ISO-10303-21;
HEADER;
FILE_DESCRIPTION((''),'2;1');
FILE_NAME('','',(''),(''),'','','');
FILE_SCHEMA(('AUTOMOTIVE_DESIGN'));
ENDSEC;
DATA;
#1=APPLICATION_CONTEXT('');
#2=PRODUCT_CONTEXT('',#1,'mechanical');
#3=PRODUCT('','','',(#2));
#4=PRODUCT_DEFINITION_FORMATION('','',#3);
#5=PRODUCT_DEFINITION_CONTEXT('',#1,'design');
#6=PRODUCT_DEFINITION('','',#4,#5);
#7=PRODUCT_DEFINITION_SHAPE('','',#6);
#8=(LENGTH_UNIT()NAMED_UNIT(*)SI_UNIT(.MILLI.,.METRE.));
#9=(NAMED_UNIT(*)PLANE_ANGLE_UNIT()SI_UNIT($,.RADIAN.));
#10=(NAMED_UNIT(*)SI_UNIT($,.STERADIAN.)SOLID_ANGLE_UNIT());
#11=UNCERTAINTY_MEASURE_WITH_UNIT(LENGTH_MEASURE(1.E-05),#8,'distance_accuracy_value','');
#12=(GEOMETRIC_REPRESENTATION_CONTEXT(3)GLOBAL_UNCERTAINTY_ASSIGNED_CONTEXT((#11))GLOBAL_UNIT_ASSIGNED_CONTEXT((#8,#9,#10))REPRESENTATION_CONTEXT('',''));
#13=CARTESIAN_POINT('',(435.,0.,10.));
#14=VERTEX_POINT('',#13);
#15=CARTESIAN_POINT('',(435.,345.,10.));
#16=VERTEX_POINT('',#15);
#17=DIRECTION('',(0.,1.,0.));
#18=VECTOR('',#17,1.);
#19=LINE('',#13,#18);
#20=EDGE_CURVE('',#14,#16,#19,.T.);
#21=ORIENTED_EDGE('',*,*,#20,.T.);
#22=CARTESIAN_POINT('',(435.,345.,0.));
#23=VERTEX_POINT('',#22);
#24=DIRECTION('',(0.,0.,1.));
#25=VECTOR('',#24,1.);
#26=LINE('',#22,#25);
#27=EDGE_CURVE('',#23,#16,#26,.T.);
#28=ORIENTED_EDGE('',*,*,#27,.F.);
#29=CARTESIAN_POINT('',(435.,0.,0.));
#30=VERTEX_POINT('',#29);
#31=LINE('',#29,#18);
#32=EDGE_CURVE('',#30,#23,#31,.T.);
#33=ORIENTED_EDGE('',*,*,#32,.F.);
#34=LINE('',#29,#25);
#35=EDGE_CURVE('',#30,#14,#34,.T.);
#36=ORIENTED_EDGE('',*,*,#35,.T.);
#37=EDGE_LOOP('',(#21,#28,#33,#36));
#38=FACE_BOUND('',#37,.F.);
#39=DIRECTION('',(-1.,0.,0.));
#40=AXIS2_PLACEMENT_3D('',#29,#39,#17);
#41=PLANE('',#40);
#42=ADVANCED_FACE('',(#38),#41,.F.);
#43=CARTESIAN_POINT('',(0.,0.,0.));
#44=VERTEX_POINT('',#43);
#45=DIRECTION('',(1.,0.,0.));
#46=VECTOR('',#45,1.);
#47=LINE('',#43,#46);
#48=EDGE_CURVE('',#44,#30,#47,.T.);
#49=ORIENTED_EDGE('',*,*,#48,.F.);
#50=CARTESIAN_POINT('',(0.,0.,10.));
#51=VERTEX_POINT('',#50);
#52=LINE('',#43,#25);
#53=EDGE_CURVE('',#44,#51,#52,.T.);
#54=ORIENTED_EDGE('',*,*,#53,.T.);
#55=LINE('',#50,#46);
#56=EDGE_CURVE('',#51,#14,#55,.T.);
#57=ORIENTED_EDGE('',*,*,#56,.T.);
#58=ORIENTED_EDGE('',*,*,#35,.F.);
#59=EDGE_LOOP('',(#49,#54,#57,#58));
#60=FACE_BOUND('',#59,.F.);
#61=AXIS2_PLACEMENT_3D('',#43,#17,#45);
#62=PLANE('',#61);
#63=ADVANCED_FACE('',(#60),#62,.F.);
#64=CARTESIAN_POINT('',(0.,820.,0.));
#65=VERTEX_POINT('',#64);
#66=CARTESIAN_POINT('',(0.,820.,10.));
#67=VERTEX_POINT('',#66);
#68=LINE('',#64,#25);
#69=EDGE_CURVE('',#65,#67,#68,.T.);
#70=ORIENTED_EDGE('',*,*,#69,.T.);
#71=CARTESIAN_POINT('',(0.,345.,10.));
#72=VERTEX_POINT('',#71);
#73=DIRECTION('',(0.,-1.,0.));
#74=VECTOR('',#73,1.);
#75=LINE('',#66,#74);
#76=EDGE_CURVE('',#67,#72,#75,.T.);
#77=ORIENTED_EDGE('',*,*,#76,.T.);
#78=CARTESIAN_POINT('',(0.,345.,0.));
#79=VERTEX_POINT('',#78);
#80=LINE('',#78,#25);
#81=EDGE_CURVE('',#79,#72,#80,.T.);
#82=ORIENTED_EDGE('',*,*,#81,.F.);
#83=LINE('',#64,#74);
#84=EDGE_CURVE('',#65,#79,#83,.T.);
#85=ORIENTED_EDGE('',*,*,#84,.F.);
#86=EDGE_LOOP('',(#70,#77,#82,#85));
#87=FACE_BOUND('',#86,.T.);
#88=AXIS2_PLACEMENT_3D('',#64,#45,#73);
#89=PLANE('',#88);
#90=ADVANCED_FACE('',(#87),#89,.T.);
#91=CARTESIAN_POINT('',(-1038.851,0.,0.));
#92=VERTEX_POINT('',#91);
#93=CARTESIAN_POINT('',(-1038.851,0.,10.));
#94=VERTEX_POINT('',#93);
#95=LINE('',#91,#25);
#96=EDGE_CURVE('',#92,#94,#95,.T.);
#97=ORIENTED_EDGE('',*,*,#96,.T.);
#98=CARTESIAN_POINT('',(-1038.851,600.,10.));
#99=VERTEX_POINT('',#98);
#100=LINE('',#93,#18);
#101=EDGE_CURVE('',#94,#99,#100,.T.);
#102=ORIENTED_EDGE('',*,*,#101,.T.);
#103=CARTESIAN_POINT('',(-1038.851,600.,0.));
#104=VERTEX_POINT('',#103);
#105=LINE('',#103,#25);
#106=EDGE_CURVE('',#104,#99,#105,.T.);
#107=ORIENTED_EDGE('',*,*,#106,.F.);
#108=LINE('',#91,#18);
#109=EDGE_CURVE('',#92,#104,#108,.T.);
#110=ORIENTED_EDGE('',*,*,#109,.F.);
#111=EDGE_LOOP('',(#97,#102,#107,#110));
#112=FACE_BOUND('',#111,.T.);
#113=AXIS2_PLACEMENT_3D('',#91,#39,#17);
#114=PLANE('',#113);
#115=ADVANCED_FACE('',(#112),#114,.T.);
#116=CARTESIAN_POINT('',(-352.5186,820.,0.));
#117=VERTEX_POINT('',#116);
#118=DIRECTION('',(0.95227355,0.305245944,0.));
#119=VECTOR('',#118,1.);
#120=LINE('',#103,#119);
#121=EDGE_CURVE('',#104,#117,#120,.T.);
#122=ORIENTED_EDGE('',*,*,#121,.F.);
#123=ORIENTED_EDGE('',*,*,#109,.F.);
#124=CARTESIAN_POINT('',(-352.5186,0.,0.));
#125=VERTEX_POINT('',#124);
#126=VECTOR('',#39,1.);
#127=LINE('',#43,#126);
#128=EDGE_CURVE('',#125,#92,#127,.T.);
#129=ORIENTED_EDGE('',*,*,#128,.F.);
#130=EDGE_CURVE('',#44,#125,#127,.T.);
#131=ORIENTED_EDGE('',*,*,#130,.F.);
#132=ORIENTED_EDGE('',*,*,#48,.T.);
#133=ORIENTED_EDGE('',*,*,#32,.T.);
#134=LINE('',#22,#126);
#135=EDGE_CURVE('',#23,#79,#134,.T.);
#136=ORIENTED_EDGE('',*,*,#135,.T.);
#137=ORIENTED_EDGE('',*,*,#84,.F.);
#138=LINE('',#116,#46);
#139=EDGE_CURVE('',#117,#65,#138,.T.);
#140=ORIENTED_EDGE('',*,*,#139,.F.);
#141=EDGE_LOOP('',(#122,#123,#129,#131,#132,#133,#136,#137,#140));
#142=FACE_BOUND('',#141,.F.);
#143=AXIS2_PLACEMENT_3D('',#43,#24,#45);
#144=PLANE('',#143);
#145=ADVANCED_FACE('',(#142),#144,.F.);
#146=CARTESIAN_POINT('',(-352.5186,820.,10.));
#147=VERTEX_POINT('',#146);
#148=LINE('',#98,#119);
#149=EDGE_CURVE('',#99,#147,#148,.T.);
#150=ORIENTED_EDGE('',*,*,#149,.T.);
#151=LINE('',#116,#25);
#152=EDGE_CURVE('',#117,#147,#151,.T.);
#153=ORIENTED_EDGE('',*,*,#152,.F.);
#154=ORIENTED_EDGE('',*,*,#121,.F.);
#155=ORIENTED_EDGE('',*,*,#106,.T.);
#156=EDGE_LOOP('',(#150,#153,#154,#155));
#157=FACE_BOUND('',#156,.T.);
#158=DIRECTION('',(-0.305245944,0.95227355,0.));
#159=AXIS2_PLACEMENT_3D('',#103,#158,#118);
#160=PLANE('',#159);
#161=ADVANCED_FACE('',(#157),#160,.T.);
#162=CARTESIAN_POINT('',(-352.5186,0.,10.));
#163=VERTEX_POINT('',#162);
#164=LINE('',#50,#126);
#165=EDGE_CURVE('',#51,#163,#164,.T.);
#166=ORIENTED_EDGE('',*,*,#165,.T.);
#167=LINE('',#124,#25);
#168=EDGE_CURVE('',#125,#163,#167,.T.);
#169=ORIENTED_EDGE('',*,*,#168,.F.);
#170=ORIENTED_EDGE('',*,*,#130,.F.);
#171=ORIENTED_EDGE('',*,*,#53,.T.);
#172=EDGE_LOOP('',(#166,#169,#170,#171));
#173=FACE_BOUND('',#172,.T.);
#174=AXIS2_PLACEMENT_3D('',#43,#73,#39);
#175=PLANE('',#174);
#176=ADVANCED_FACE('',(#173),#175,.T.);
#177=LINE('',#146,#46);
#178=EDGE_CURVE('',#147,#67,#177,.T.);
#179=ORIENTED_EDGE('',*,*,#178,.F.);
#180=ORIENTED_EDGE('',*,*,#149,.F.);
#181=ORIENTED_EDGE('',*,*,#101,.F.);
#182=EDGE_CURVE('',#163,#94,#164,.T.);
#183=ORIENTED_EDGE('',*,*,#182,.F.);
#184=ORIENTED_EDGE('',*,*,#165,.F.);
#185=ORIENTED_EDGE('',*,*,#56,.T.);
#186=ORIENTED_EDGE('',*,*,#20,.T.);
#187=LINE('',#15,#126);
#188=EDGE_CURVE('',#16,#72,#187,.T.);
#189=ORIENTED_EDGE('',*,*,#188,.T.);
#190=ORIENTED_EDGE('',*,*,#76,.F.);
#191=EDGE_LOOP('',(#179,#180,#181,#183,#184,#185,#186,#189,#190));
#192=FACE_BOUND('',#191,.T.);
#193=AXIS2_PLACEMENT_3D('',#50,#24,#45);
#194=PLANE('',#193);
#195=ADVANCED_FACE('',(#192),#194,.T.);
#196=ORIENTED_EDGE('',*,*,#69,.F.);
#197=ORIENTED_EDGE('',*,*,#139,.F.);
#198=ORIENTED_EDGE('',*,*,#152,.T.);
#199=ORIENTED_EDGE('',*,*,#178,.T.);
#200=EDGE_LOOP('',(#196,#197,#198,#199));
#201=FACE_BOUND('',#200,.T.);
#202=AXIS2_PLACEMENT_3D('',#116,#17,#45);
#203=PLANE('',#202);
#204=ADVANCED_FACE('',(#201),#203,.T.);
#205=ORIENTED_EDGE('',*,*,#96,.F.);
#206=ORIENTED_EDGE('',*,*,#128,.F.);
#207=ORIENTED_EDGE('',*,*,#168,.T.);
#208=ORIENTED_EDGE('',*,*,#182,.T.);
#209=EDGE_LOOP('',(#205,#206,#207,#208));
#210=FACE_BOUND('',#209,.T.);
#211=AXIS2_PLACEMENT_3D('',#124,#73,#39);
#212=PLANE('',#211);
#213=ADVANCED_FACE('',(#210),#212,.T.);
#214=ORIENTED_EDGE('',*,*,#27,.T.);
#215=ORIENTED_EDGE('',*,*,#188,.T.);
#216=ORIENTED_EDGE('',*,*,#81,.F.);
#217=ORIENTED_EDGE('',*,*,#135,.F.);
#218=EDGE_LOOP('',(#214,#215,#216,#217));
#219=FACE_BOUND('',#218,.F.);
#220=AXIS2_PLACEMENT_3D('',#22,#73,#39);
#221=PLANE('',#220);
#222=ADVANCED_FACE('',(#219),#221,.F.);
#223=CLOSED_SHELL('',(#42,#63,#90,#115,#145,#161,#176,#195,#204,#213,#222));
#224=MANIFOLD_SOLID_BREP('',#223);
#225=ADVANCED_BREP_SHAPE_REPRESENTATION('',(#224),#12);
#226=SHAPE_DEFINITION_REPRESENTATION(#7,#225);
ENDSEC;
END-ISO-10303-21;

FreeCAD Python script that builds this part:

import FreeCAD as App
import Part
import Sketcher

V = App.Vector
Q = App.Units.Quantity

doc = App.newDocument("Part")
body = doc.addObject("PartDesign::Body", "Body")

sketch1 = doc.addObject("Sketcher::SketchObject", "Sketch")
body.addObject(sketch1)
sketch1.AttachmentSupport = (doc.XY_Plane, [""])
sketch1.MapMode = "FlatFace"
sketch1.addGeometry([
    Part.LineSegment(V(-1038.851, 0, 0), V(435, 0, 0)),
    Part.LineSegment(V(435, 0, 0), V(435, 345, 0)),
    Part.LineSegment(V(435, 345, 0), V(0, 345, 0)),
    Part.LineSegment(V(0, 345, 0), V(0, 820, 0)),
    Part.LineSegment(V(0, 820, 0), V(-352.5186, 820, 0)),
    Part.LineSegment(V(-352.5186, 820, 0), V(-1038.851, 600, 0)),
    Part.LineSegment(V(-1038.851, 600, 0), V(-1038.851, 0, 0)),
], False)
sketch1.addConstraint([
    Sketcher.Constraint("Coincident", 0, 2, 1, 1),
    Sketcher.Constraint("Coincident", 1, 2, 2, 1),
    Sketcher.Constraint("Coincident", 2, 2, 3, 1),
    Sketcher.Constraint("Coincident", 3, 2, 4, 1),
    Sketcher.Constraint("Coincident", 4, 2, 5, 1),
    Sketcher.Constraint("Coincident", 5, 2, 6, 1),
    Sketcher.Constraint("Coincident", 6, 2, 0, 1),
    Sketcher.Constraint("Horizontal", 0),
    Sketcher.Constraint("Vertical", 1),
    Sketcher.Constraint("Horizontal", 2),
    Sketcher.Constraint("Vertical", 3),
    Sketcher.Constraint("Horizontal", 4),
    Sketcher.Constraint("Vertical", 6),
    Sketcher.Constraint("PointOnObject", 0, 2, -1),
    Sketcher.Constraint("PointOnObject", 2, 2, -2),
    Sketcher.Constraint("DistanceX", 2, 2, 2, 1, Q("435 mm")),
    Sketcher.Constraint("DistanceY", 1, 1, 1, 2, Q("345 mm")),
    Sketcher.Constraint("DistanceY", 3, 1, 3, 2, Q("475 mm")),
    Sketcher.Constraint("DistanceY", 6, 2, 6, 1, Q("600 mm")),
    Sketcher.Constraint("DistanceX", 0, 1, 0, 2, Q("1473.851 mm")),
    Sketcher.Constraint("DistanceX", 4, 2, 1, 2, Q("787.5186 mm")),
])
pad1 = doc.addObject("PartDesign::Pad", "Pad")
body.addObject(pad1)
pad1.Profile = sketch1
pad1.Length = 10

doc.recompute()
